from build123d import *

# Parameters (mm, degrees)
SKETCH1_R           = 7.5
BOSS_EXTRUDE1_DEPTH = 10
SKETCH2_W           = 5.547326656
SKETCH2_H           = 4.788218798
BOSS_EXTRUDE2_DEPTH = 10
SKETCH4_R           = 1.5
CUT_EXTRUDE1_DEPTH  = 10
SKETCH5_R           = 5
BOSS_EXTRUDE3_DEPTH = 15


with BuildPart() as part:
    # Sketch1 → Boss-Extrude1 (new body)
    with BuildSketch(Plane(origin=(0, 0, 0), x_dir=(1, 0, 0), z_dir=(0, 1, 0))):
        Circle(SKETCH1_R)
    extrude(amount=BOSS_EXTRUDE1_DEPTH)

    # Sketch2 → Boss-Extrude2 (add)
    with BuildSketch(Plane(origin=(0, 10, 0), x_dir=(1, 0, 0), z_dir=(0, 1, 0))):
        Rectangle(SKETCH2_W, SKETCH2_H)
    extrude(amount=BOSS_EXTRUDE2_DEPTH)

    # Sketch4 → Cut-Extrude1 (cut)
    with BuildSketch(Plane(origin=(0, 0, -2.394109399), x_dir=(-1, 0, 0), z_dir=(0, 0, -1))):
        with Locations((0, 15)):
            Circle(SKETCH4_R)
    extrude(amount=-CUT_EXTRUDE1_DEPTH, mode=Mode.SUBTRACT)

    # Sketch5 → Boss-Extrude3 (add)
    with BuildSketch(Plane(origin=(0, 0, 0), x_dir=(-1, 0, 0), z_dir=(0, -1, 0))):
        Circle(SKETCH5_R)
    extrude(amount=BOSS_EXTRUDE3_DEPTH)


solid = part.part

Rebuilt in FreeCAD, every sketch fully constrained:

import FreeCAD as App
import Part
import Sketcher


def add_polygon(sketch, points):
    """Adds a closed chain of lines whose ends are joined by coincident constraints."""
    first, n = sketch.GeometryCount, len(points)
    for a, b in zip(points, points[1:] + points[:1]):
        sketch.addGeometry(Part.LineSegment(App.Vector(*a, 0), App.Vector(*b, 0)), False)
    for i in range(n):
        sketch.addConstraint(Sketcher.Constraint("Coincident", first + i, 2, first + (i + 1) % n, 1))

doc = App.newDocument("Part")
body = doc.addObject("PartDesign::Body", "Body")

sketch1 = body.newObject("Sketcher::SketchObject", "Sketch")
sketch1.AttachmentSupport = (doc.getObject("XZ_Plane"), [""])
sketch1.MapMode = "FlatFace"
sketch1.addGeometry(Part.Circle(App.Vector(0, 0, 0), App.Vector(0, 0, 1), 8), False)
sketch1.addConstraint([
    Sketcher.Constraint("Coincident", 0, 3, -1, 1),
    Sketcher.Constraint("Diameter", 0, 15.0),
])
pad1 = body.newObject("PartDesign::Pad", "Pad")
pad1.Profile = sketch1
pad1.Length = 10
pad1.Reversed = True

sketch2 = body.newObject("Sketcher::SketchObject", "Sketch001")
sketch2.AttachmentSupport = (doc.getObject("XZ_Plane"), [""])
sketch2.MapMode = "FlatFace"
sketch2.AttachmentOffset = App.Placement(App.Vector(0, 0, -10), App.Rotation())
add_polygon(sketch2, [(-2.8, -2.4), (-2.8, 2.4), (2.8, 2.4), (2.8, -2.4)])
sketch2.addConstraint([
    Sketcher.Constraint("Vertical", 0),
    Sketcher.Constraint("Horizontal", 1),
    Sketcher.Constraint("Vertical", 2),
    Sketcher.Constraint("Horizontal", 3),
    Sketcher.Constraint("Symmetric", 0, 2, 2, 2, -1, 1),
    Sketcher.Constraint("DistanceY", 0, 1, 0, 2, 4.788219),
    Sketcher.Constraint("DistanceX", 1, 1, 1, 2, 5.547327),
])
pad2 = body.newObject("PartDesign::Pad", "Pad001")
pad2.Profile = sketch2
pad2.Length = 10
pad2.Reversed = True

sketch3 = body.newObject("Sketcher::SketchObject", "Sketch002")
sketch3.AttachmentSupport = (doc.getObject("XY_Plane"), [""])
sketch3.MapMode = "FlatFace"
sketch3.AttachmentOffset = App.Placement(App.Vector(0, 0, -2.394109), App.Rotation())
sketch3.addGeometry(Part.Circle(App.Vector(0, 15, 0), App.Vector(0, 0, 1), 1.5), False)
sketch3.addConstraint([
    Sketcher.Constraint("PointOnObject", 0, 3, -2),
    Sketcher.Constraint("Diameter", 0, 3.0),
    Sketcher.Constraint("DistanceY", -1, 1, 0, 3, 15.0),
])
pocket1 = body.newObject("PartDesign::Pocket", "Pocket")
pocket1.Profile = sketch3
pocket1.Length = 10
pocket1.Reversed = True

sketch4 = body.newObject("Sketcher::SketchObject", "Sketch003")
sketch4.AttachmentSupport = (doc.getObject("XZ_Plane"), [""])
sketch4.MapMode = "FlatFace"
sketch4.addGeometry(Part.Circle(App.Vector(0, 0, 0), App.Vector(0, 0, 1), 5), False)
sketch4.addConstraint([
    Sketcher.Constraint("Coincident", 0, 3, -1, 1),
    Sketcher.Constraint("Diameter", 0, 10.0),
])
pad3 = body.newObject("PartDesign::Pad", "Pad002")
pad3.Profile = sketch4
pad3.Length = 15

doc.recompute()
